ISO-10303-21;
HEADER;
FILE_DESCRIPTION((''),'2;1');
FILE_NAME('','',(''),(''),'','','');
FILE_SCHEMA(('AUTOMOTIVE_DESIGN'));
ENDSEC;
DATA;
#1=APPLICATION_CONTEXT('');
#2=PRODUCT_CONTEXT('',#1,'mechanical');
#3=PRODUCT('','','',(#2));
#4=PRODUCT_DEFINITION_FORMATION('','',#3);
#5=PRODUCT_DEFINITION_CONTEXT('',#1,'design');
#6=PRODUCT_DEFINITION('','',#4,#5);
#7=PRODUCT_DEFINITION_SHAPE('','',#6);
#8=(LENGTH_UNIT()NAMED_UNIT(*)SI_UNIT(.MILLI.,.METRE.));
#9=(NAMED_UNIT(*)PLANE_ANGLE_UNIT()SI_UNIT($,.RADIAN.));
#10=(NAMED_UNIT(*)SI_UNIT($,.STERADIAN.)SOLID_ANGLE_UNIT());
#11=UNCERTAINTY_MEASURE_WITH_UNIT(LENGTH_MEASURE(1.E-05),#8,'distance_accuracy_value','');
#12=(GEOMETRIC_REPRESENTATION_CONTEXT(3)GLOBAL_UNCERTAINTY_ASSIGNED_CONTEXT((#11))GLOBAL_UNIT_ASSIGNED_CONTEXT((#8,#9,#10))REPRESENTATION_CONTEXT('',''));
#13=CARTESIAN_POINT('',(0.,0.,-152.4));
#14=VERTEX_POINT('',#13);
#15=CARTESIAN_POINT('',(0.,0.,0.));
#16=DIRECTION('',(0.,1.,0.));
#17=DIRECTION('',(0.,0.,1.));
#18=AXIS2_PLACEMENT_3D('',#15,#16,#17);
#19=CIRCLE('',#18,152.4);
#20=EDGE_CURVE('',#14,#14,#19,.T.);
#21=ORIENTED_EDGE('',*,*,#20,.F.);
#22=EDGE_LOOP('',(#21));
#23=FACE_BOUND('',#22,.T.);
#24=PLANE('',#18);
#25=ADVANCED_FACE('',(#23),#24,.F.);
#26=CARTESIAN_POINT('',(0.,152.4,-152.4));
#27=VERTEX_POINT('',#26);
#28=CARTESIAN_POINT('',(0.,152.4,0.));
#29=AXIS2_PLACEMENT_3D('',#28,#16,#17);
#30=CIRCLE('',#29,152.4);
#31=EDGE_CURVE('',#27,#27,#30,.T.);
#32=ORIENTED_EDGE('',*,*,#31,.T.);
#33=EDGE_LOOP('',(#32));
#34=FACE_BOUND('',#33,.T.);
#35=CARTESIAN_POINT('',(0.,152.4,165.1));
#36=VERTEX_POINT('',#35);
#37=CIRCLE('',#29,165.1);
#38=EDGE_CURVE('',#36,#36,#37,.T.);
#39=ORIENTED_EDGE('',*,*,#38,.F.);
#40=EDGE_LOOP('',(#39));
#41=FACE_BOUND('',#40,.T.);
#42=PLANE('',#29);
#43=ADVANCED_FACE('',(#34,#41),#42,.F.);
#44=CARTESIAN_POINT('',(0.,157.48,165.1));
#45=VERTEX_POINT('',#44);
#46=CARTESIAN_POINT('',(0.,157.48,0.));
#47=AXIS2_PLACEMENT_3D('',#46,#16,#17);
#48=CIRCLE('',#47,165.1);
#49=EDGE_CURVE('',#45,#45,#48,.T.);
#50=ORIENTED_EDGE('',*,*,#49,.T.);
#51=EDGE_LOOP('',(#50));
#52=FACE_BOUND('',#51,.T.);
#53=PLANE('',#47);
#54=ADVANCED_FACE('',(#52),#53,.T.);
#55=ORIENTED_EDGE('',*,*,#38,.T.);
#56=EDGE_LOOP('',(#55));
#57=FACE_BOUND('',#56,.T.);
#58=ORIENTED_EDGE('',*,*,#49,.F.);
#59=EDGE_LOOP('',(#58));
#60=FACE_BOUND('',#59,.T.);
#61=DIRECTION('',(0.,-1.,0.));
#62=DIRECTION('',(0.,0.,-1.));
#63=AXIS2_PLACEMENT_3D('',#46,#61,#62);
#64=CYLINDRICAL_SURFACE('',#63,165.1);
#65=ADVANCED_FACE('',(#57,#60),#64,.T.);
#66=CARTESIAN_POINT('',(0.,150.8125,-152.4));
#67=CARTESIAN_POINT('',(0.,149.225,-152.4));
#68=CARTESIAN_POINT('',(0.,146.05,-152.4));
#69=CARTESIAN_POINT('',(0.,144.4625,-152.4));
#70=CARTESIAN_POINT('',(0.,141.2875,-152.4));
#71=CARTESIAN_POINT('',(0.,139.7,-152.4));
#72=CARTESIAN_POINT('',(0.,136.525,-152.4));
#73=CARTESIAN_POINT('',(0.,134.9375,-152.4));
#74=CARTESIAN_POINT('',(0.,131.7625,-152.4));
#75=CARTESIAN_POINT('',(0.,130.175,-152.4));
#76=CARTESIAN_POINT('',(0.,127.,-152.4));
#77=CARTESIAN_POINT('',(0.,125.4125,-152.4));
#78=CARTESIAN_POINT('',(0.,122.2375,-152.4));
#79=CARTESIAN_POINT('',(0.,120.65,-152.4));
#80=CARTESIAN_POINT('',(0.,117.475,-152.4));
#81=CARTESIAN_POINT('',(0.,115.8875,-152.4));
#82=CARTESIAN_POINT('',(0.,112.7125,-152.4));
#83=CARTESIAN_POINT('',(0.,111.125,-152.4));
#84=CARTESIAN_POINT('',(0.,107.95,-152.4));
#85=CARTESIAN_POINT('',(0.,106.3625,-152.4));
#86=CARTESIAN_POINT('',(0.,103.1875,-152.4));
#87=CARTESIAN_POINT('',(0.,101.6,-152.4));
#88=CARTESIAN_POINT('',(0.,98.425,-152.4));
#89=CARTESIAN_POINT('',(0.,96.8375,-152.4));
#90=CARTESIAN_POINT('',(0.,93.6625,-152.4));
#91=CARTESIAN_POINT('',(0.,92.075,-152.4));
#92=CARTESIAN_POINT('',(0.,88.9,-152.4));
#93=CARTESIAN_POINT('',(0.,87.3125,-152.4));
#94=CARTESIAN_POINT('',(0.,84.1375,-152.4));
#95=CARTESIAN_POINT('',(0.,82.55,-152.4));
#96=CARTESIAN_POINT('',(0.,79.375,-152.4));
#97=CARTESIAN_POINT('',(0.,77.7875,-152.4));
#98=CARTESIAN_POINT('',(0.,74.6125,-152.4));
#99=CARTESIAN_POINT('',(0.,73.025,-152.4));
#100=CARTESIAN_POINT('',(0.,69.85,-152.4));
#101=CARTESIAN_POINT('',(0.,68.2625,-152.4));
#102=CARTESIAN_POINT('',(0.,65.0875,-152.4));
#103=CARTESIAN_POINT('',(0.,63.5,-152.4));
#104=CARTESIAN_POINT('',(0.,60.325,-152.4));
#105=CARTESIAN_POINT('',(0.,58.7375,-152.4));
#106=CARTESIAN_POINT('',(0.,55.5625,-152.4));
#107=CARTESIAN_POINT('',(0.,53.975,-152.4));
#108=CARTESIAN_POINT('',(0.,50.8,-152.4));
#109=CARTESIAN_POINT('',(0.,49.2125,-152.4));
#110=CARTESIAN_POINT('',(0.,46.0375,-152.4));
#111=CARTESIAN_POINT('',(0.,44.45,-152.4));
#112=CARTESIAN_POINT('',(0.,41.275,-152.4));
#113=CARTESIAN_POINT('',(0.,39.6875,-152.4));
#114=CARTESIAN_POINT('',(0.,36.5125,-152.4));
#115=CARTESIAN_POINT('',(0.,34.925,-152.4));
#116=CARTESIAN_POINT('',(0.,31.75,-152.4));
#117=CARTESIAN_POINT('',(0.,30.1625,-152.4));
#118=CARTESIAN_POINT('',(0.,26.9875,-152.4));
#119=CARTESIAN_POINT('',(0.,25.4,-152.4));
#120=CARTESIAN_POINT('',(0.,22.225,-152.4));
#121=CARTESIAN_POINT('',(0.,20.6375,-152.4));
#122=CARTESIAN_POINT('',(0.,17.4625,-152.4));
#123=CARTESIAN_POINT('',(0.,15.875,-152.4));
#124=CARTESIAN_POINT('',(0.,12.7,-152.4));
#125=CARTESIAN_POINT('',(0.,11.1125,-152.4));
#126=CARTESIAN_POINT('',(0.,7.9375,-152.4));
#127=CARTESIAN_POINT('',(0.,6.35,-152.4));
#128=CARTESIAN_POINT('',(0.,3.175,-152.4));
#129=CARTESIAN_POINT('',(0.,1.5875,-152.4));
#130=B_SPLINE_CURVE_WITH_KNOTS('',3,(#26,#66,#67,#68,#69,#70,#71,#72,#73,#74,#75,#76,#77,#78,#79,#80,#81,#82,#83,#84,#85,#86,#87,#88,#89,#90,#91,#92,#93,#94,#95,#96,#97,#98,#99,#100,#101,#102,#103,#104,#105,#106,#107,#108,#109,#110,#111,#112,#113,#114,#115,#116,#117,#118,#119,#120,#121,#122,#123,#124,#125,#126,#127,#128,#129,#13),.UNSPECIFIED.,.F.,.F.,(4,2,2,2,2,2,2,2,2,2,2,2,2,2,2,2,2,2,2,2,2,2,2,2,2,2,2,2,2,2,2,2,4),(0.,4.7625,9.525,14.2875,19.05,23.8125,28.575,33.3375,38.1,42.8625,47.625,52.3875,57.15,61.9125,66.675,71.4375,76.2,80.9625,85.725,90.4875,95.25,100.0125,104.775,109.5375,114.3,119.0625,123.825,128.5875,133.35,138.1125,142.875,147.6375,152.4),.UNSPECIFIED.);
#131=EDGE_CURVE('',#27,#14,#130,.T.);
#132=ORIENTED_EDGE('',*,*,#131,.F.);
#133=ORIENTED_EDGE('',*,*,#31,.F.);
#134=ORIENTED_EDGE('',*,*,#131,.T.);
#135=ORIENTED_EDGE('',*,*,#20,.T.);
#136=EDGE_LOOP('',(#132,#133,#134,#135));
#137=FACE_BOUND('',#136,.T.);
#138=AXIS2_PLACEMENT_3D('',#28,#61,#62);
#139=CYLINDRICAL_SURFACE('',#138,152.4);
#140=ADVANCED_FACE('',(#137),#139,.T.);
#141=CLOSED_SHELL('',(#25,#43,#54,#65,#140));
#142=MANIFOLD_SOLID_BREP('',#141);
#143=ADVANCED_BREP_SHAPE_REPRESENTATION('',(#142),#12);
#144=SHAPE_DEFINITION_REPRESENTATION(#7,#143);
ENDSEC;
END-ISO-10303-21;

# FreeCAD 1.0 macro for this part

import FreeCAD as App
import Part
import Sketcher
Q = App.Units.Quantity

doc = App.newDocument("Part")
body = doc.addObject("PartDesign::Body", "Body")

sketch1 = doc.addObject("Sketcher::SketchObject", "Sketch")
body.addObject(sketch1)
sketch1.AttachmentSupport = (doc.XZ_Plane, [""])
sketch1.MapMode = "FlatFace"
sketch1.addGeometry(Part.Circle(App.Vector(0, 0, 0), App.Vector(0, 0, 1), 152.4), False)
sketch1.addConstraint([
    Sketcher.Constraint("Coincident", 0, 3, -1, 1),
    Sketcher.Constraint("Diameter", 0, Q("12 in")),
])
pad1 = doc.addObject("PartDesign::Pad", "Pad")
body.addObject(pad1)
pad1.Profile = sketch1
pad1.Length = Q("6 in")
pad1.Reversed = True

sketch2 = doc.addObject("Sketcher::SketchObject", "Sketch001")
body.addObject(sketch2)
sketch2.AttachmentSupport = (doc.XZ_Plane, [""])
sketch2.MapMode = "FlatFace"
sketch2.AttachmentOffset = App.Placement(App.Vector(0, 0, -6 * 25.4), App.Rotation())
sketch2.addGeometry(Part.Circle(App.Vector(0, 0, 0), App.Vector(0, 0, 1), 165.1), False)
sketch2.addConstraint([
    Sketcher.Constraint("Coincident", 0, 3, -1, 1),
    Sketcher.Constraint("Diameter", 0, Q("13 in")),
])
pad2 = doc.addObject("PartDesign::Pad", "Pad001")
body.addObject(pad2)
pad2.Profile = sketch2
pad2.Length = Q("0.2 in")
pad2.Reversed = True

doc.recompute()
